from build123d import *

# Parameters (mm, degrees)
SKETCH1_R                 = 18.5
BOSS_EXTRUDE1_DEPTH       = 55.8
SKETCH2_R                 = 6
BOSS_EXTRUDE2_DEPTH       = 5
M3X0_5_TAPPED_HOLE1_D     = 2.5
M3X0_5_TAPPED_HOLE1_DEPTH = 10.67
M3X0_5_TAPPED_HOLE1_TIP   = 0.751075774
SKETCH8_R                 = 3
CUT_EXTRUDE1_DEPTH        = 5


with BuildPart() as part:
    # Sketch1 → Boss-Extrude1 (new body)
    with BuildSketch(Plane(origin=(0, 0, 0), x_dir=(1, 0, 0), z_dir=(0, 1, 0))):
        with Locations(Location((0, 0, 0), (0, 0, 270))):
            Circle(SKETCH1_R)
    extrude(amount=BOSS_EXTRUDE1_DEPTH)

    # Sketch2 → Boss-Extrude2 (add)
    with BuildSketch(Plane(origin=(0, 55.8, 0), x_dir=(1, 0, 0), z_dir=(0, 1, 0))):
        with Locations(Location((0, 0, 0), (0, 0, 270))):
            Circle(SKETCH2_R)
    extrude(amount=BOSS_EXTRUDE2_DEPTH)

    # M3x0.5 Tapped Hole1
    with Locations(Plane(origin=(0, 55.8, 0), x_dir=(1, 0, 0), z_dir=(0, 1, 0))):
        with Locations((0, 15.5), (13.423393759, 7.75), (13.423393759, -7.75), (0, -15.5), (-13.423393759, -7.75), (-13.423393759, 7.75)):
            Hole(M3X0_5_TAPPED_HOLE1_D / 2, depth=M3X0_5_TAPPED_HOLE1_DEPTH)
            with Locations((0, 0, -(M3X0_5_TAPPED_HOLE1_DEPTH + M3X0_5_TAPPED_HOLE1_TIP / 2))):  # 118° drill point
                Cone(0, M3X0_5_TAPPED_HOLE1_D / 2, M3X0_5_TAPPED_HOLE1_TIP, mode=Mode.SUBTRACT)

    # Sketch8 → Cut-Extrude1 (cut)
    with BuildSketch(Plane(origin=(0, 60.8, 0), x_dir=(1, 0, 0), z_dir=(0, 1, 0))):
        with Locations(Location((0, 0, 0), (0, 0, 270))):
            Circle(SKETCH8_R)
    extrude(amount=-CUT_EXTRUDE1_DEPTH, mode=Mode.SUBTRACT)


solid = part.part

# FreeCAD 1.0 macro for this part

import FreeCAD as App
import Part
import Sketcher
Q = App.Units.Quantity

doc = App.newDocument("Part")
body = doc.addObject("PartDesign::Body", "Body")

# Sketch on XZ plane
sketch1 = body.newObject("Sketcher::SketchObject", "Sketch")
sketch1.AttachmentSupport = (doc.getObject("XZ_Plane"), [""])
sketch1.MapMode = "FlatFace"
sketch1.addGeometry(Part.Circle(App.Vector(0, 0, 0), App.Vector(0, 0, 1), 18.5), False)
sketch1.addConstraint([
    Sketcher.Constraint("Coincident", 0, 3, -1, 1),
    Sketcher.Constraint("Diameter", 0, Q("37 mm")),
])
pad1 = body.newObject("PartDesign::Pad", "Pad")
pad1.Profile = sketch1
pad1.Length = 55.8
pad1.Reversed = True

# Sketch on XZ plane
sketch2 = body.newObject("Sketcher::SketchObject", "Sketch001")
sketch2.AttachmentSupport = (doc.getObject("XZ_Plane"), [""])
sketch2.MapMode = "FlatFace"
sketch2.AttachmentOffset = App.Placement(App.Vector(0, 0, -55.8), App.Rotation())
sketch2.addGeometry(Part.Circle(App.Vector(0, 0, 0), App.Vector(0, 0, 1), 6), False)
sketch2.addConstraint([
    Sketcher.Constraint("Coincident", 0, 3, -1, 1),
    Sketcher.Constraint("Diameter", 0, Q("12 mm")),
])
pad2 = body.newObject("PartDesign::Pad", "Pad001")
pad2.Profile = sketch2
pad2.Length = 5
pad2.Reversed = True

# Sketch on XZ plane
sketch3 = body.newObject("Sketcher::SketchObject", "Sketch002")
sketch3.AttachmentSupport = (doc.getObject("XZ_Plane"), [""])
sketch3.MapMode = "FlatFace"
sketch3.AttachmentOffset = App.Placement(App.Vector(0, 0, -55.8), App.Rotation())
sketch3.addGeometry([
    Part.Circle(App.Vector(0, -15.5, 0), App.Vector(0, 0, 1), 1.25),  # 0
    Part.Circle(App.Vector(13.423394, -7.75, 0), App.Vector(0, 0, 1), 1.25),  # 1
    Part.Circle(App.Vector(13.423394, 7.75, 0), App.Vector(0, 0, 1), 1.25),  # 2
    Part.Circle(App.Vector(0, 15.5, 0), App.Vector(0, 0, 1), 1.25),  # 3
    Part.Circle(App.Vector(-13.423394, 7.75, 0), App.Vector(0, 0, 1), 1.25),  # 4
    Part.Circle(App.Vector(-13.423394, -7.75, 0), App.Vector(0, 0, 1), 1.25),  # 5
], False)
sketch3.addConstraint([
    Sketcher.Constraint("Equal", 0, 1),
    Sketcher.Constraint("Equal", 1, 2),
    Sketcher.Constraint("Equal", 2, 3),
    Sketcher.Constraint("Equal", 3, 4),
    Sketcher.Constraint("Equal", 4, 5),
    Sketcher.Constraint("Symmetric", 0, 3, 3, 3, -1, 1),
    Sketcher.Constraint("Symmetric", 1, 3, 4, 3, -1, 1),
    Sketcher.Constraint("Symmetric", 2, 3, 5, 3, -1, 1),
    Sketcher.Constraint("Symmetric", 2, 3, 4, 3, -2),
    Sketcher.Constraint("PointOnObject", 0, 3, -2),
    Sketcher.Constraint("Diameter", 0, Q("2.5 mm")),
    Sketcher.Constraint("DistanceY", 0, 3, 3, 3, Q("31 mm")),
    Sketcher.Constraint("DistanceY", 1, 3, 2, 3, Q("15.5 mm")),
    Sketcher.Constraint("DistanceX", -1, 1, 1, 3, Q("13.423394 mm")),
])
doc.recompute()
hole = body.newObject("PartDesign::Hole", "Hole")
hole.Profile = sketch3
hole.ThreadType = "None"
hole.Diameter = 2.5
hole.DepthType = "Dimension"
hole.Depth = 10.67
hole.DrillPoint = "Angled"
hole.DrillPointAngle = 118
hole.Reversed = True

# Sketch on XZ plane
sketch4 = body.newObject("Sketcher::SketchObject", "Sketch003")
sketch4.AttachmentSupport = (doc.getObject("XZ_Plane"), [""])
sketch4.MapMode = "FlatFace"
sketch4.AttachmentOffset = App.Placement(App.Vector(0, 0, -60.8), App.Rotation())
sketch4.addGeometry(Part.Circle(App.Vector(0, 0, 0), App.Vector(0, 0, 1), 3), False)
sketch4.addConstraint([
    Sketcher.Constraint("Coincident", 0, 3, -1, 1),
    Sketcher.Constraint("Diameter", 0, Q("6 mm")),
])
pocket1 = body.newObject("PartDesign::Pocket", "Pocket")
pocket1.Profile = sketch4
pocket1.Length = 5
pocket1.Reversed = True

doc.recompute()
